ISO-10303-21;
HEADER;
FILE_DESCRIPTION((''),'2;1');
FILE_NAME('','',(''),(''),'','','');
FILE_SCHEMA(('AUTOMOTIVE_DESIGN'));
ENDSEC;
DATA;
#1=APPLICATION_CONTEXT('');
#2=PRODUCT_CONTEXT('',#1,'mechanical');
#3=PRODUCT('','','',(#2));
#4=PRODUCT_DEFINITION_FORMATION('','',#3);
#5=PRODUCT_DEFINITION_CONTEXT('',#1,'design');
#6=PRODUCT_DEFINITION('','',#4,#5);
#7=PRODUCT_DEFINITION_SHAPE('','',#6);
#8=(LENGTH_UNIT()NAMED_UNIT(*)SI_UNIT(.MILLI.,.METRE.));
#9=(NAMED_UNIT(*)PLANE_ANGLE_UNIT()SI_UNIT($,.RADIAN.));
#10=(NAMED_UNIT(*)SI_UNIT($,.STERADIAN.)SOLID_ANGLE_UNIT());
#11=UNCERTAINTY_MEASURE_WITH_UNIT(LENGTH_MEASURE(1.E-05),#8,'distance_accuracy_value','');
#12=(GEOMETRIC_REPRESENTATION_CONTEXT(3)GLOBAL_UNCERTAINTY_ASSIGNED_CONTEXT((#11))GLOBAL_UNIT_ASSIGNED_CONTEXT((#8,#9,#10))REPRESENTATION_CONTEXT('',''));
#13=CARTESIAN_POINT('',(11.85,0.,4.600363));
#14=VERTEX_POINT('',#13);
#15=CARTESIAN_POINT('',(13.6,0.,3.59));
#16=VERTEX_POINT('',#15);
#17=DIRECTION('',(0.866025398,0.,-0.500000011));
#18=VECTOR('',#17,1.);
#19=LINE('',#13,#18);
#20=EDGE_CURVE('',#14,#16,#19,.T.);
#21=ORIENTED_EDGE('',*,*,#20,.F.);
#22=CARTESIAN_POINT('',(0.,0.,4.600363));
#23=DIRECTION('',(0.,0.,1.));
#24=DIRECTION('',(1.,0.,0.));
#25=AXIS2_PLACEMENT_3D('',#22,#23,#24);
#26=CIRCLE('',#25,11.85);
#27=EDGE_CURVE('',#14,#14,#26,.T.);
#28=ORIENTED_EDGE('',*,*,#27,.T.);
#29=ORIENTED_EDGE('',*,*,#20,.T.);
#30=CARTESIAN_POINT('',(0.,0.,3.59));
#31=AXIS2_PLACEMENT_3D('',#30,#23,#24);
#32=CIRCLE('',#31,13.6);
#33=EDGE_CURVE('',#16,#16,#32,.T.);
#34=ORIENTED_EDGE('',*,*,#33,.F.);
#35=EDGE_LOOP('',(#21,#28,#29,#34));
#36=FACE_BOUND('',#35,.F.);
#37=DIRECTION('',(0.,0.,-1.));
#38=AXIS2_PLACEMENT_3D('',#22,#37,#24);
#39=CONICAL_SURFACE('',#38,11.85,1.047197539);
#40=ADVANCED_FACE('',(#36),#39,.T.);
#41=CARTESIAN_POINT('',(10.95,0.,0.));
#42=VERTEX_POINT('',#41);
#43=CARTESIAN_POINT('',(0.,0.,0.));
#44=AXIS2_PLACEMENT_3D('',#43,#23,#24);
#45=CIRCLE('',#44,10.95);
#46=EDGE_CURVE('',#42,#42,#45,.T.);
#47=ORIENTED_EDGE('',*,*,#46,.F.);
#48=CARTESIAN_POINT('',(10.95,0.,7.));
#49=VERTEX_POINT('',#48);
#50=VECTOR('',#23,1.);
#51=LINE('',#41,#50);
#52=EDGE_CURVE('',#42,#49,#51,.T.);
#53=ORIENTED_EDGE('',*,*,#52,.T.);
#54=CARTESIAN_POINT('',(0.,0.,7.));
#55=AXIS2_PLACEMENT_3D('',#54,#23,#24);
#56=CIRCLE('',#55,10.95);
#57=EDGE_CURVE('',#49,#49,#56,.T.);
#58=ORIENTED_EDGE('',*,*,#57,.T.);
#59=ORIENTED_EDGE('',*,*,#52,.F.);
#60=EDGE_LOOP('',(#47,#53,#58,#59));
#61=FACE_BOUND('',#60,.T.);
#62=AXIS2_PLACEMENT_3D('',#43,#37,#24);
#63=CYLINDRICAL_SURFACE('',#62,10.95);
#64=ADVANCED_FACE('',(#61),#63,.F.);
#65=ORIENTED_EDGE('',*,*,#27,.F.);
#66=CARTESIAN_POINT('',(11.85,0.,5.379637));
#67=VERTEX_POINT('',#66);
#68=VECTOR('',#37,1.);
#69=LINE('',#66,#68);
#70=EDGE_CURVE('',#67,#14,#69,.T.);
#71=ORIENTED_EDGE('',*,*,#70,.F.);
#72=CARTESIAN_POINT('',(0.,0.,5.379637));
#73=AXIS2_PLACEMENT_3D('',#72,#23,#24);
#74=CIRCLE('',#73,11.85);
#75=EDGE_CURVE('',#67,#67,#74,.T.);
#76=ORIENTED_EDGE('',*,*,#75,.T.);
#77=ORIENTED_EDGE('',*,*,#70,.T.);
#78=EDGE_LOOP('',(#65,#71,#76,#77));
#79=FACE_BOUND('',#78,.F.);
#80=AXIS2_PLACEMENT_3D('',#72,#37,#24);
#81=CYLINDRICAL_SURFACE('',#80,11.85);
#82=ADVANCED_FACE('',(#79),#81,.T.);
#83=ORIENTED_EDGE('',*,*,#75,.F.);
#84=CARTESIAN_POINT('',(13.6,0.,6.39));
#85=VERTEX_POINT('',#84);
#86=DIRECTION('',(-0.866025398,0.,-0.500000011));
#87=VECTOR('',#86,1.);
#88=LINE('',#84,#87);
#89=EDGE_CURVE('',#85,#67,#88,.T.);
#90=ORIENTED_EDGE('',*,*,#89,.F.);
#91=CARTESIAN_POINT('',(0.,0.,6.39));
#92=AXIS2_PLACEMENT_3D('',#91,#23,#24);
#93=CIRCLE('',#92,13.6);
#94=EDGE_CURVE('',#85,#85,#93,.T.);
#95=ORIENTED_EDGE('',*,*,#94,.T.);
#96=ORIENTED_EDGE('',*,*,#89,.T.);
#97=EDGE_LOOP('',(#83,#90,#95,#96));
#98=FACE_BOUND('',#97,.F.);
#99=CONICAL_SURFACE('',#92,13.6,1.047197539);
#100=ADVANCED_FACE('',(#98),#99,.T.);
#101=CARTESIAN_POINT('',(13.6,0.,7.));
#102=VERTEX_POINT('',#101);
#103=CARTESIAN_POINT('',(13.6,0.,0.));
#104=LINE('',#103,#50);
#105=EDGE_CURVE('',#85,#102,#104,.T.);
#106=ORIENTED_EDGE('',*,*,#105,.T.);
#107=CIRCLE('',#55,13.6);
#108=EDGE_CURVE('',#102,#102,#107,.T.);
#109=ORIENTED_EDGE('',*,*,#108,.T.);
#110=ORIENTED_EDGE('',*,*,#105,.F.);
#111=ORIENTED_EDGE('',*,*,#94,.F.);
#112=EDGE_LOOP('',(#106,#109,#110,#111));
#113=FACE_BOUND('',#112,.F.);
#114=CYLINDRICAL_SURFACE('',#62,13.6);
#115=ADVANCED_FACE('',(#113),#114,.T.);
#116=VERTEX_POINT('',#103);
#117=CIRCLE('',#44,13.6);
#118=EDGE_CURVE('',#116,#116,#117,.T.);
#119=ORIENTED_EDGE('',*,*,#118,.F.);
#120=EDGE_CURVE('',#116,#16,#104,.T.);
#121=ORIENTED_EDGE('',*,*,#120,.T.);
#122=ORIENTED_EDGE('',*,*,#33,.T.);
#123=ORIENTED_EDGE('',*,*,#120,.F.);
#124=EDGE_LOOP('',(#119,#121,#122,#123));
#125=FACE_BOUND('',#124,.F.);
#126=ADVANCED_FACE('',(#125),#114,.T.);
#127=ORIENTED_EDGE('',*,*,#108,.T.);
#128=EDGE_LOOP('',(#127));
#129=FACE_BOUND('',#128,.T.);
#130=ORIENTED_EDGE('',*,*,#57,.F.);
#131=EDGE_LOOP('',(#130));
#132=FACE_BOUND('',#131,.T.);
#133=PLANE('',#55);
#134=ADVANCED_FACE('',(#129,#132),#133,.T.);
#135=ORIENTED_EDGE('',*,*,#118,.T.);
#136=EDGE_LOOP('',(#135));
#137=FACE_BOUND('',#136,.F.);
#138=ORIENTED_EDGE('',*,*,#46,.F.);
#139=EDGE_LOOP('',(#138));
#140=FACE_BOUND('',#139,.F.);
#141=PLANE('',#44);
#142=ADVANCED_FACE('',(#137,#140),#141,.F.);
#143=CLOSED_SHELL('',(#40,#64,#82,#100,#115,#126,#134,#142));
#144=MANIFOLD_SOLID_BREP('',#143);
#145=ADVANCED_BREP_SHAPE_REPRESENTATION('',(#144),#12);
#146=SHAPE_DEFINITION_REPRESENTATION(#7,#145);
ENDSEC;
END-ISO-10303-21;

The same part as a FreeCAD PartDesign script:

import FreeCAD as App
import Part
import Sketcher
from FreeCAD import Vector
Q = App.Units.Quantity

doc = App.newDocument("Part")
body = doc.addObject("PartDesign::Body", "Body")

# Sketch on XY plane
sketch1 = doc.addObject("Sketcher::SketchObject", "Sketch")
body.addObject(sketch1)
sketch1.AttachmentSupport = (doc.XY_Plane, [""])
sketch1.MapMode = "FlatFace"
sketch1.addGeometry(Part.Circle(Vector(0, 0, 0), Vector(0, 0, 1), 13.6), False)
sketch1.addGeometry(Part.Circle(Vector(0, 0, 0), Vector(0, 0, 1), 10.95), False)
sketch1.addConstraint(Sketcher.Constraint("Coincident", 0, 3, -1, 1))
sketch1.addConstraint(Sketcher.Constraint("Coincident", 1, 3, -1, 1))
sketch1.addConstraint(Sketcher.Constraint("Diameter", 0, 27.2))
sketch1.addConstraint(Sketcher.Constraint("Diameter", 1, 21.9))
pad1 = doc.addObject("PartDesign::Pad", "Pad")
body.addObject(pad1)
pad1.Profile = sketch1
pad1.Length = 7

# Sketch on XZ plane
sketch2 = doc.addObject("Sketcher::SketchObject", "Sketch001")
body.addObject(sketch2)
sketch2.AttachmentSupport = (doc.XZ_Plane, [""])
sketch2.MapMode = "FlatFace"
sketch2.addGeometry(Part.LineSegment(Vector(13.6, 3.59, 0), Vector(13.6, 6.39, 0)), False)
sketch2.addGeometry(Part.LineSegment(Vector(13.6, 6.39, 0), Vector(11.85, 5.379637, 0)), False)
sketch2.addGeometry(Part.LineSegment(Vector(11.85, 5.379637, 0), Vector(11.85, 4.600363, 0)), False)
sketch2.addGeometry(Part.LineSegment(Vector(11.85, 4.600363, 0), Vector(13.6, 3.59, 0)), False)
sketch2.addConstraint(Sketcher.Constraint("Coincident", 0, 2, 1, 1))
sketch2.addConstraint(Sketcher.Constraint("Coincident", 1, 2, 2, 1))
sketch2.addConstraint(Sketcher.Constraint("Coincident", 2, 2, 3, 1))
sketch2.addConstraint(Sketcher.Constraint("Coincident", 3, 2, 0, 1))
sketch2.addConstraint(Sketcher.Constraint("Vertical", 0))
sketch2.addConstraint(Sketcher.Constraint("Vertical", 2))
sketch2.addConstraint(Sketcher.Constraint("Equal", 1, 3))
sketch2.addConstraint(Sketcher.Constraint("Angle", 1, Q("-149.999999 deg")))
sketch2.addConstraint(Sketcher.Constraint("DistanceY", 0, 1, 0, 2, 2.8))
sketch2.addConstraint(Sketcher.Constraint("DistanceX", -1, 1, 0, 2, 13.6))
sketch2.addConstraint(Sketcher.Constraint("DistanceY", -1, 1, 0, 2, 6.39))
sketch2.addConstraint(Sketcher.Constraint("DistanceX", -1, 1, 1, 2, 11.85))
groove = doc.addObject("PartDesign::Groove", "Groove")
body.addObject(groove)
groove.Profile = sketch2
groove.ReferenceAxis = (sketch2, ["V_Axis"])
groove.Angle = 360

doc.recompute()
